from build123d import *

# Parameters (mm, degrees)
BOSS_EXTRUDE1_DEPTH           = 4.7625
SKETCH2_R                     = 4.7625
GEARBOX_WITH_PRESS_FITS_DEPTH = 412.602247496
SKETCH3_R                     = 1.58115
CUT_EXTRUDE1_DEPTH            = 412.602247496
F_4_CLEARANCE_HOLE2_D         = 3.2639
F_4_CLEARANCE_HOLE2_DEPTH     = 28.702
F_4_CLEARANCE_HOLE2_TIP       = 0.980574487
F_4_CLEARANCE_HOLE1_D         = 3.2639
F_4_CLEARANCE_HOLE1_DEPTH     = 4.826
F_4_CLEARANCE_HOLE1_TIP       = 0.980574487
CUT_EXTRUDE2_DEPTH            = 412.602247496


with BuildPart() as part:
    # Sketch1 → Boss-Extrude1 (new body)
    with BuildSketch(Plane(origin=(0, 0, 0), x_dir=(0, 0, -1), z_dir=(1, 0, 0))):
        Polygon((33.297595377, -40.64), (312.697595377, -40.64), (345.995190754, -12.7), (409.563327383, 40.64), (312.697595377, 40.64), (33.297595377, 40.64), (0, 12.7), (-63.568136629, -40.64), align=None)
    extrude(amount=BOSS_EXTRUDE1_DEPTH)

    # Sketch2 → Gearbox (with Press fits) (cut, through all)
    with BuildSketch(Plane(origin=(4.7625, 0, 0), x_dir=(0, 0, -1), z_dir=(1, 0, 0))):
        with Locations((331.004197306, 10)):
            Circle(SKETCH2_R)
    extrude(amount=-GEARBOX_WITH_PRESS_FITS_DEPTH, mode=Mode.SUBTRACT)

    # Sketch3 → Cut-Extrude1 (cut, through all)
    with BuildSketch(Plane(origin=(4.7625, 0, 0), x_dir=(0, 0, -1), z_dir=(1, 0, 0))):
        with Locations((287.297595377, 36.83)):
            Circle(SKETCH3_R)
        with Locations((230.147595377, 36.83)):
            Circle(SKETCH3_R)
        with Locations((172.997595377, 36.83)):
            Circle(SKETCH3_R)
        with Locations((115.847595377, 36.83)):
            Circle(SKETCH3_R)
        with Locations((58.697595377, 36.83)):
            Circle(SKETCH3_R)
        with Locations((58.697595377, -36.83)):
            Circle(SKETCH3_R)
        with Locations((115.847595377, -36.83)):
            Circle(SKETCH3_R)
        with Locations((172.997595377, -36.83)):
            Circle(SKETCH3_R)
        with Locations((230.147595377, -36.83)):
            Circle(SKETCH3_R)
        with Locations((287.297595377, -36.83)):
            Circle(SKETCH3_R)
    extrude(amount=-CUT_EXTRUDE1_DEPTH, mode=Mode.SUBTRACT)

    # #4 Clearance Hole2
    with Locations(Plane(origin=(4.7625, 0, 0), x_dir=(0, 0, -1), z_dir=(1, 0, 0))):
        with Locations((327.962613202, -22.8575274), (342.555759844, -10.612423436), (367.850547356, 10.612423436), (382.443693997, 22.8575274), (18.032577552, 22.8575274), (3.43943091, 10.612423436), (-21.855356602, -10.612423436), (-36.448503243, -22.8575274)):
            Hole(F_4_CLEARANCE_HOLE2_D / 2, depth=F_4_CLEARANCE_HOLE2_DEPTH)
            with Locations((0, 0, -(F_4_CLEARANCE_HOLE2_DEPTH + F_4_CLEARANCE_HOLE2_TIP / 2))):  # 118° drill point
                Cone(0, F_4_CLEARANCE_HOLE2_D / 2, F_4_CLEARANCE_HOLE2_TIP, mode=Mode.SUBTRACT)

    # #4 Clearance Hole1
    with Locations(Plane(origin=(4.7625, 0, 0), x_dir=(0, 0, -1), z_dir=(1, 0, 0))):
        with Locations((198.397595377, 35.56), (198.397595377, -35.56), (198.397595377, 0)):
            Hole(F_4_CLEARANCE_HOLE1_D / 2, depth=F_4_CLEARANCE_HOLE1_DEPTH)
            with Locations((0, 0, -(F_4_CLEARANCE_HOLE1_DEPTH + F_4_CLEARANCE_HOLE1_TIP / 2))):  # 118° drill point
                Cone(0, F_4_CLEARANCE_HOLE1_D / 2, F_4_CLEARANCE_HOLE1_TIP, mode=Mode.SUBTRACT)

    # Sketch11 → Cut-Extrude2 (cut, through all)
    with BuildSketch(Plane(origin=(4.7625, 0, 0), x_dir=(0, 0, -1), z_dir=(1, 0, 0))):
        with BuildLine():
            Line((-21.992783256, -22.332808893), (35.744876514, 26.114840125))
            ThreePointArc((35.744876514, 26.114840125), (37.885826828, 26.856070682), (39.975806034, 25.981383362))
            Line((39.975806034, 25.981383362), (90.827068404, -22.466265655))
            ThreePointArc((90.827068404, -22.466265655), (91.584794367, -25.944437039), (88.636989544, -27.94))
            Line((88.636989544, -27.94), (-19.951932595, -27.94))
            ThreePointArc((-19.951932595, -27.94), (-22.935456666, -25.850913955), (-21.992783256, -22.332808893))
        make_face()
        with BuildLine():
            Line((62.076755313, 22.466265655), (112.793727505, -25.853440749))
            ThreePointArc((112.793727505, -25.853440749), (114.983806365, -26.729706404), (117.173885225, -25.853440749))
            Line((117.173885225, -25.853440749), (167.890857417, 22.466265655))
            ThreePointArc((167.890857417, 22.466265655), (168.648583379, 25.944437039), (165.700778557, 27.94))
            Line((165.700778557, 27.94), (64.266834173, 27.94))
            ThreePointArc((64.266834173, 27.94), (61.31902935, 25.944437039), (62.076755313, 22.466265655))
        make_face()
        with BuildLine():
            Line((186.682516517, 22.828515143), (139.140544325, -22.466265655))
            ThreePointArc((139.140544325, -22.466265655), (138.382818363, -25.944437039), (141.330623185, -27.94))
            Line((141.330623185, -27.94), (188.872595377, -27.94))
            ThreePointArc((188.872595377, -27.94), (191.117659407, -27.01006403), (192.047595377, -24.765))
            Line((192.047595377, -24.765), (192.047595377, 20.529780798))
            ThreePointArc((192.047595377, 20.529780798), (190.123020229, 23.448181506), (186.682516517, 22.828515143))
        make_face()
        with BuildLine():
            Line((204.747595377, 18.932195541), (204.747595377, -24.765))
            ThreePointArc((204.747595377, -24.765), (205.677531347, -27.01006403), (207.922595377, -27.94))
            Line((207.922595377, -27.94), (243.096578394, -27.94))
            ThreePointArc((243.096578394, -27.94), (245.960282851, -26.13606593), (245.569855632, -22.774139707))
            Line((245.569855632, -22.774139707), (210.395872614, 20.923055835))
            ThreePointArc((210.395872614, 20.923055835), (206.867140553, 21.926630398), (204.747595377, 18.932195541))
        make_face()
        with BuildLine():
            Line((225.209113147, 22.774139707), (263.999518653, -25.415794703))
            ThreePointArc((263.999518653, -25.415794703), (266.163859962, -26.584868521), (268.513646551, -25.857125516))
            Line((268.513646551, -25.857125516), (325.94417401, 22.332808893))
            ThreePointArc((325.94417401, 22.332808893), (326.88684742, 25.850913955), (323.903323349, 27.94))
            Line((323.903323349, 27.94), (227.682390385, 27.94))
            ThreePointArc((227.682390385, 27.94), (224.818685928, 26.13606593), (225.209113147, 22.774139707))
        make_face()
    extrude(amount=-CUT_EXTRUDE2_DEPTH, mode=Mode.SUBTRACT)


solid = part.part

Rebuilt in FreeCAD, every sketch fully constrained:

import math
import FreeCAD as App
import Part
import Sketcher
from FreeCAD import Vector
Q = App.Units.Quantity


def add_polygon(sketch, points):
    """Adds a closed chain of lines whose ends are joined by coincident constraints."""
    first, n = sketch.GeometryCount, len(points)
    for a, b in zip(points, points[1:] + points[:1]):
        sketch.addGeometry(Part.LineSegment(App.Vector(*a, 0), App.Vector(*b, 0)), False)
    for i in range(n):
        sketch.addConstraint(Sketcher.Constraint("Coincident", first + i, 2, first + (i + 1) % n, 1))

doc = App.newDocument("Part")
body = doc.addObject("PartDesign::Body", "Body")

# Sketch on YZ plane
sketch1 = body.newObject("Sketcher::SketchObject", "Sketch")
sketch1.AttachmentSupport = (doc.getObject("YZ_Plane"), [""])
sketch1.MapMode = "FlatFace"
add_polygon(sketch1, [(-40.64, -312.697595), (-12.7, -345.995191), (40.64, -409.563327), (40.64, -33.297595), (12.7, 0), (-40.64, 63.568137)])  # lines 0-5
sketch1.addConstraint(Sketcher.Constraint("Vertical", 2))
sketch1.addConstraint(Sketcher.Constraint("Vertical", 5))
sketch1.addConstraint(Sketcher.Constraint("PointOnObject", 3, 2, -1))
sketch1.addConstraint(Sketcher.Constraint("Parallel", 0, 1))
sketch1.addConstraint(Sketcher.Constraint("Parallel", 1, 3))
sketch1.addConstraint(Sketcher.Constraint("Parallel", 3, 4))
sketch1.addConstraint(Sketcher.Constraint("Equal", 0, 3))
sketch1.addConstraint(Sketcher.Constraint("Angle", 0, Q("-50 deg")))
sketch1.addConstraint(Sketcher.Constraint("DistanceX", 0, 2, 3, 2, Q("1 in")))
sketch1.addConstraint(Sketcher.Constraint("DistanceY", 5, 2, 2, 2, Q("11 in")))
sketch1.addConstraint(Sketcher.Constraint("DistanceX", 0, 2, -1, 1, Q("0.5 in")))
sketch1.addConstraint(Sketcher.Constraint("DistanceX", -1, 1, 1, 2, Q("1.6 in")))
pad1 = body.newObject("PartDesign::Pad", "Pad")
pad1.Profile = sketch1
pad1.Length = Q("0.1875 in")

# Sketch on YZ plane
sketch2 = body.newObject("Sketcher::SketchObject", "Sketch001")
sketch2.AttachmentSupport = (doc.getObject("YZ_Plane"), [""])
sketch2.MapMode = "FlatFace"
sketch2.AttachmentOffset = App.Placement(Vector(0, 0, 0.1875 * 25.4), App.Rotation())
sketch2.addGeometry(Part.Circle(Vector(10, -331.004197, 0), Vector(0, 0, 1), 4.7625), False)
sketch2.addConstraint(Sketcher.Constraint("Diameter", 0, Q("0.375 in")))
sketch2.addConstraint(Sketcher.Constraint("DistanceX", -1, 1, 0, 3, 10.0))
sketch2.addConstraint(Sketcher.Constraint("DistanceY", 0, 3, -1, 1, 331.004197))
pocket1 = body.newObject("PartDesign::Pocket", "Pocket")
pocket1.Profile = sketch2
pocket1.Type = "ThroughAll"

# Sketch on YZ plane
sketch3 = body.newObject("Sketcher::SketchObject", "Sketch002")
sketch3.AttachmentSupport = (doc.getObject("YZ_Plane"), [""])
sketch3.MapMode = "FlatFace"
sketch3.AttachmentOffset = App.Placement(Vector(0, 0, 0.1875 * 25.4), App.Rotation())
sketch3.addGeometry(Part.Circle(Vector(36.83, -287.297595, 0), Vector(0, 0, 1), 1.58115), False)
sketch3.addGeometry(Part.Circle(Vector(36.83, -230.147595, 0), Vector(0, 0, 1), 1.58115), False)
sketch3.addGeometry(Part.Circle(Vector(36.83, -172.997595, 0), Vector(0, 0, 1), 1.58115), False)
sketch3.addGeometry(Part.Circle(Vector(36.83, -115.847595, 0), Vector(0, 0, 1), 1.58115), False)
sketch3.addGeometry(Part.Circle(Vector(36.83, -58.697595, 0), Vector(0, 0, 1), 1.58115), False)
sketch3.addGeometry(Part.Circle(Vector(-36.83, -58.697595, 0), Vector(0, 0, 1), 1.58115), False)
sketch3.addGeometry(Part.Circle(Vector(-36.83, -115.847595, 0), Vector(0, 0, 1), 1.58115), False)
sketch3.addGeometry(Part.Circle(Vector(-36.83, -172.997595, 0), Vector(0, 0, 1), 1.58115), False)
sketch3.addGeometry(Part.Circle(Vector(-36.83, -230.147595, 0), Vector(0, 0, 1), 1.58115), False)
sketch3.addGeometry(Part.Circle(Vector(-36.83, -287.297595, 0), Vector(0, 0, 1), 1.58115), False)
sketch3.addConstraint(Sketcher.Constraint("Equal", 0, 1))
sketch3.addConstraint(Sketcher.Constraint("Equal", 1, 2))
sketch3.addConstraint(Sketcher.Constraint("Equal", 2, 3))
sketch3.addConstraint(Sketcher.Constraint("Equal", 3, 4))
sketch3.addConstraint(Sketcher.Constraint("Equal", 4, 5))
sketch3.addConstraint(Sketcher.Constraint("Equal", 5, 6))
sketch3.addConstraint(Sketcher.Constraint("Equal", 6, 7))
sketch3.addConstraint(Sketcher.Constraint("Equal", 7, 8))
sketch3.addConstraint(Sketcher.Constraint("Equal", 8, 9))
sketch3.addConstraint(Sketcher.Constraint("Symmetric", 4, 3, 5, 3, -2))
sketch3.addConstraint(Sketcher.Constraint("Symmetric", 3, 3, 6, 3, -2))
sketch3.addConstraint(Sketcher.Constraint("Symmetric", 2, 3, 7, 3, -2))
sketch3.addConstraint(Sketcher.Constraint("Symmetric", 1, 3, 8, 3, -2))
sketch3.addConstraint(Sketcher.Constraint("Symmetric", 0, 3, 9, 3, -2))
sketch3.addConstraint(Sketcher.Constraint("Vertical", 0, 3, 1, 3))
sketch3.addConstraint(Sketcher.Constraint("Vertical", 1, 3, 2, 3))
sketch3.addConstraint(Sketcher.Constraint("Vertical", 2, 3, 3, 3))
sketch3.addConstraint(Sketcher.Constraint("Vertical", 3, 3, 4, 3))
sketch3.addConstraint(Sketcher.Constraint("DistanceY", 0, 3, 4, 3, Q("9 in")))
sketch3.addConstraint(Sketcher.Constraint("Diameter", 0, Q("0.1245 in")))
sketch3.addConstraint(Sketcher.Constraint("DistanceY", 0, 3, 2, 3, Q("4.5 in")))
sketch3.addConstraint(Sketcher.Constraint("DistanceY", 1, 3, 3, 3, Q("4.5 in")))
sketch3.addConstraint(Sketcher.Constraint("DistanceX", 5, 3, 4, 3, Q("2.9 in")))
sketch3.addConstraint(Sketcher.Constraint("DistanceY", 0, 3, 1, 3, Q("2.25 in")))
sketch3.addConstraint(Sketcher.Constraint("DistanceY", 0, 3, -1, 1, 287.297595))
pocket2 = body.newObject("PartDesign::Pocket", "Pocket001")
pocket2.Profile = sketch3
pocket2.Type = "ThroughAll"

# Sketch on YZ plane
sketch4 = body.newObject("Sketcher::SketchObject", "Sketch003")
sketch4.AttachmentSupport = (doc.getObject("YZ_Plane"), [""])
sketch4.MapMode = "FlatFace"
sketch4.AttachmentOffset = App.Placement(Vector(0, 0, 0.1875 * 25.4), App.Rotation())
sketch4.addGeometry(Part.Circle(Vector(-22.857527, -327.962613, 0), Vector(0, 0, 1), 1.63195), False)
sketch4.addGeometry(Part.Circle(Vector(-10.612423, -342.55576, 0), Vector(0, 0, 1), 1.63195), False)
sketch4.addGeometry(Part.Circle(Vector(10.612423, -367.850547, 0), Vector(0, 0, 1), 1.63195), False)
sketch4.addGeometry(Part.Circle(Vector(22.857527, -382.443694, 0), Vector(0, 0, 1), 1.63195), False)
sketch4.addGeometry(Part.Circle(Vector(22.857527, -18.032578, 0), Vector(0, 0, 1), 1.63195), False)
sketch4.addGeometry(Part.Circle(Vector(10.612423, -3.439431, 0), Vector(0, 0, 1), 1.63195), False)
sketch4.addGeometry(Part.Circle(Vector(-10.612423, 21.855357, 0), Vector(0, 0, 1), 1.63195), False)
sketch4.addGeometry(Part.Circle(Vector(-22.857527, 36.448503, 0), Vector(0, 0, 1), 1.63195), False)
sketch4.addConstraint(Sketcher.Constraint("Equal", 0, 1))
sketch4.addConstraint(Sketcher.Constraint("Equal", 1, 2))
sketch4.addConstraint(Sketcher.Constraint("Equal", 2, 3))
sketch4.addConstraint(Sketcher.Constraint("Equal", 3, 4))
sketch4.addConstraint(Sketcher.Constraint("Equal", 4, 5))
sketch4.addConstraint(Sketcher.Constraint("Equal", 5, 6))
sketch4.addConstraint(Sketcher.Constraint("Equal", 6, 7))
sketch4.addConstraint(Sketcher.Constraint("Vertical", 3, 3, 4, 3))
sketch4.addConstraint(Sketcher.Constraint("Vertical", 2, 3, 5, 3))
sketch4.addConstraint(Sketcher.Constraint("Vertical", 1, 3, 6, 3))
sketch4.addConstraint(Sketcher.Constraint("Vertical", 0, 3, 7, 3))
sketch4.addConstraint(Sketcher.Constraint("Diameter", 0, Q("0.1285 in")))
sketch4.addConstraint(Sketcher.Constraint("DistanceY", 1, 3, -1, 1, 342.55576))
sketch4.addConstraint(Sketcher.Constraint("DistanceY", 5, 3, -1, 1, 3.439431))
sketch4.addConstraint(Sketcher.Constraint("DistanceX", 0, 3, 2, 3, 33.469951))
sketch4.addConstraint(Sketcher.Constraint("DistanceX", 1, 3, 3, 3, 33.469951))
sketch4.addConstraint(Sketcher.Constraint("DistanceY", 3, 3, 0, 3, 54.481081))
sketch4.addConstraint(Sketcher.Constraint("DistanceY", 2, 3, 4, 3, 349.81797))
sketch4.addConstraint(Sketcher.Constraint("DistanceY", 0, 3, 6, 3, 349.81797))
sketch4.addConstraint(Sketcher.Constraint("DistanceY", 4, 3, 7, 3, 54.481081))
sketch4.addConstraint(Sketcher.Constraint("DistanceX", 0, 3, -1, 1, 22.857527))
sketch4.addConstraint(Sketcher.Constraint("DistanceY", 0, 3, -1, 1, 327.962613))
sketch4.addConstraint(Sketcher.Constraint("DistanceX", 1, 3, -1, 1, 10.612423))
sketch4.addConstraint(Sketcher.Constraint("DistanceY", 2, 3, -1, 1, 367.850547))
doc.recompute()
hole = body.newObject("PartDesign::Hole", "Hole")
hole.Profile = sketch4
hole.ThreadType = "None"
hole.Diameter = Q("0.1285 in")
hole.DepthType = "Dimension"
hole.Depth = Q("1.13 in")
hole.DrillPoint = "Angled"
hole.DrillPointAngle = 118

# Sketch on YZ plane
sketch5 = body.newObject("Sketcher::SketchObject", "Sketch004")
sketch5.AttachmentSupport = (doc.getObject("YZ_Plane"), [""])
sketch5.MapMode = "FlatFace"
sketch5.AttachmentOffset = App.Placement(Vector(0, 0, 0.1875 * 25.4), App.Rotation())
sketch5.addGeometry(Part.Circle(Vector(35.56, -198.397595, 0), Vector(0, 0, 1), 1.63195), False)
sketch5.addGeometry(Part.Circle(Vector(-35.56, -198.397595, 0), Vector(0, 0, 1), 1.63195), False)
sketch5.addGeometry(Part.Circle(Vector(0, -198.397595, 0), Vector(0, 0, 1), 1.63195), False)
sketch5.addConstraint(Sketcher.Constraint("Equal", 0, 1))
sketch5.addConstraint(Sketcher.Constraint("Equal", 1, 2))
sketch5.addConstraint(Sketcher.Constraint("Symmetric", 0, 3, 1, 3, -2))
sketch5.addConstraint(Sketcher.Constraint("PointOnObject", 2, 3, -2))
sketch5.addConstraint(Sketcher.Constraint("Horizontal", 1, 3, 2, 3))
sketch5.addConstraint(Sketcher.Constraint("Diameter", 0, Q("0.1285 in")))
sketch5.addConstraint(Sketcher.Constraint("DistanceX", -1, 1, 0, 3, Q("1.4 in")))
sketch5.addConstraint(Sketcher.Constraint("DistanceY", 0, 3, -1, 1, 198.397595))
doc.recompute()
hole2 = body.newObject("PartDesign::Hole", "Hole001")
hole2.Profile = sketch5
hole2.ThreadType = "None"
hole2.Diameter = Q("0.1285 in")
hole2.DepthType = "Dimension"
hole2.Depth = Q("0.19 in")
hole2.DrillPoint = "Angled"
hole2.DrillPointAngle = 118

# Sketch on YZ plane
sketch6 = body.newObject("Sketcher::SketchObject", "Sketch005")
sketch6.AttachmentSupport = (doc.getObject("YZ_Plane"), [""])
sketch6.MapMode = "FlatFace"
sketch6.AttachmentOffset = App.Placement(Vector(0, 0, 0.1875 * 25.4), App.Rotation())
sketch6.addGeometry(Part.LineSegment(Vector(26.11484, -35.744877, 0), Vector(-22.332809, 21.992783, 0)), False)
sketch6.addGeometry(Part.ArcOfCircle(Part.Circle(Vector(-24.765, 19.951933, 0), Vector(0, 0, 1), 3.175), math.radians(40), math.radians(180)), False)
sketch6.addGeometry(Part.LineSegment(Vector(-27.94, 19.951933, 0), Vector(-27.94, -88.63699, 0)), False)
sketch6.addGeometry(Part.ArcOfCircle(Part.Circle(Vector(-24.765, -88.63699, 0), Vector(0, 0, 1), 3.175), math.radians(180), math.radians(316.386622)), False)
sketch6.addGeometry(Part.LineSegment(Vector(-22.466266, -90.827068, 0), Vector(25.981383, -39.975806, 0)), False)
sketch6.addGeometry(Part.ArcOfCircle(Part.Circle(Vector(23.682649, -37.785727, 0), Vector(0, 0, 1), 3.175), math.radians(-43.613378), math.radians(40)), False)
sketch6.addGeometry(Part.LineSegment(Vector(22.466266, -62.076755, 0), Vector(-25.853441, -112.793728, 0)), False)
sketch6.addGeometry(Part.ArcOfCircle(Part.Circle(Vector(-23.554706, -114.983806, 0), Vector(0, 0, 1), 3.175), math.radians(136.386622), math.radians(223.613378)), False)
sketch6.addGeometry(Part.LineSegment(Vector(-25.853441, -117.173885, 0), Vector(22.466266, -167.890857, 0)), False)
sketch6.addGeometry(Part.ArcOfCircle(Part.Circle(Vector(24.765, -165.700779, 0), Vector(0, 0, 1), 3.175), math.radians(-136.386622), math.radians(0)), False)
sketch6.addGeometry(Part.LineSegment(Vector(27.94, -165.700779, 0), Vector(27.94, -64.266834, 0)), False)
sketch6.addGeometry(Part.ArcOfCircle(Part.Circle(Vector(24.765, -64.266834, 0), Vector(0, 0, 1), 3.175), math.radians(0), math.radians(136.386622)), False)
sketch6.addGeometry(Part.LineSegment(Vector(22.828515, -186.682517, 0), Vector(-22.466266, -139.140544, 0)), False)
sketch6.addGeometry(Part.ArcOfCircle(Part.Circle(Vector(-24.765, -141.330623, 0), Vector(0, 0, 1), 3.175), math.radians(43.613378), math.radians(180)), False)
sketch6.addGeometry(Part.LineSegment(Vector(-27.94, -141.330623, 0), Vector(-27.94, -188.872595, 0)), False)
sketch6.addGeometry(Part.ArcOfCircle(Part.Circle(Vector(-24.765, -188.872595, 0), Vector(0, 0, 1), 3.175), math.radians(-180), math.radians(-90)), False)
sketch6.addGeometry(Part.LineSegment(Vector(-24.765, -192.047595, 0), Vector(20.529781, -192.047595, 0)), False)
sketch6.addGeometry(Part.ArcOfCircle(Part.Circle(Vector(20.529781, -188.872595, 0), Vector(0, 0, 1), 3.175), math.radians(-90), math.radians(43.613378)), False)
sketch6.addGeometry(Part.LineSegment(Vector(18.932196, -204.747595, 0), Vector(-24.765, -204.747595, 0)), False)
sketch6.addGeometry(Part.ArcOfCircle(Part.Circle(Vector(-24.765, -207.922595, 0), Vector(0, 0, 1), 3.175), math.radians(90), math.radians(180)), False)
sketch6.addGeometry(Part.LineSegment(Vector(-27.94, -207.922595, 0), Vector(-27.94, -243.096578, 0)), False)
sketch6.addGeometry(Part.ArcOfCircle(Part.Circle(Vector(-24.765, -243.096578, 0), Vector(0, 0, 1), 3.175), math.radians(180), math.radians(308.832267)), False)
sketch6.addGeometry(Part.LineSegment(Vector(-22.77414, -245.569856, 0), Vector(20.923056, -210.395873, 0)), False)
sketch6.addGeometry(Part.ArcOfCircle(Part.Circle(Vector(18.932196, -207.922595, 0), Vector(0, 0, 1), 3.175), math.radians(-51.167733), math.radians(90)), False)
sketch6.addGeometry(Part.LineSegment(Vector(22.77414, -225.209113, 0), Vector(-25.415795, -263.999519, 0)), False)
sketch6.addGeometry(Part.ArcOfCircle(Part.Circle(Vector(-23.424934, -266.472796, 0), Vector(0, 0, 1), 3.175), math.radians(128.832267), math.radians(220)), False)
sketch6.addGeometry(Part.LineSegment(Vector(-25.857126, -268.513647, 0), Vector(22.332809, -325.944174, 0)), False)
sketch6.addGeometry(Part.ArcOfCircle(Part.Circle(Vector(24.765, -323.903323, 0), Vector(0, 0, 1), 3.175), math.radians(-140), math.radians(0)), False)
sketch6.addGeometry(Part.LineSegment(Vector(27.94, -323.903323, 0), Vector(27.94, -227.68239, 0)), False)
sketch6.addGeometry(Part.ArcOfCircle(Part.Circle(Vector(24.765, -227.68239, 0), Vector(0, 0, 1), 3.175), math.radians(0), math.radians(128.832267)), False)
sketch6.addConstraint(Sketcher.Constraint("Tangent", 0, 2, 1, 1))
sketch6.addConstraint(Sketcher.Constraint("Tangent", 1, 2, 2, 1))
sketch6.addConstraint(Sketcher.Constraint("Tangent", 2, 2, 3, 1))
sketch6.addConstraint(Sketcher.Constraint("Tangent", 3, 2, 4, 1))
sketch6.addConstraint(Sketcher.Constraint("Tangent", 4, 2, 5, 1))
sketch6.addConstraint(Sketcher.Constraint("Tangent", 5, 2, 0, 1))
sketch6.addConstraint(Sketcher.Constraint("Tangent", 6, 2, 7, 1))
sketch6.addConstraint(Sketcher.Constraint("Tangent", 7, 2, 8, 1))
sketch6.addConstraint(Sketcher.Constraint("Tangent", 8, 2, 9, 1))
sketch6.addConstraint(Sketcher.Constraint("Tangent", 9, 2, 10, 1))
sketch6.addConstraint(Sketcher.Constraint("Tangent", 10, 2, 11, 1))
sketch6.addConstraint(Sketcher.Constraint("Tangent", 11, 2, 6, 1))
sketch6.addConstraint(Sketcher.Constraint("Tangent", 12, 2, 13, 1))
sketch6.addConstraint(Sketcher.Constraint("Tangent", 13, 2, 14, 1))
sketch6.addConstraint(Sketcher.Constraint("Tangent", 14, 2, 15, 1))
sketch6.addConstraint(Sketcher.Constraint("Tangent", 15, 2, 16, 1))
sketch6.addConstraint(Sketcher.Constraint("Tangent", 16, 2, 17, 1))
sketch6.addConstraint(Sketcher.Constraint("Tangent", 17, 2, 12, 1))
sketch6.addConstraint(Sketcher.Constraint("Tangent", 18, 2, 19, 1))
sketch6.addConstraint(Sketcher.Constraint("Tangent", 19, 2, 20, 1))
sketch6.addConstraint(Sketcher.Constraint("Tangent", 20, 2, 21, 1))
sketch6.addConstraint(Sketcher.Constraint("Tangent", 21, 2, 22, 1))
sketch6.addConstraint(Sketcher.Constraint("Tangent", 22, 2, 23, 1))
sketch6.addConstraint(Sketcher.Constraint("Tangent", 23, 2, 18, 1))
sketch6.addConstraint(Sketcher.Constraint("Tangent", 24, 2, 25, 1))
sketch6.addConstraint(Sketcher.Constraint("Tangent", 25, 2, 26, 1))
sketch6.addConstraint(Sketcher.Constraint("Tangent", 26, 2, 27, 1))
sketch6.addConstraint(Sketcher.Constraint("Tangent", 27, 2, 28, 1))
sketch6.addConstraint(Sketcher.Constraint("Tangent", 28, 2, 29, 1))
sketch6.addConstraint(Sketcher.Constraint("Tangent", 29, 2, 24, 1))
sketch6.addConstraint(Sketcher.Constraint("Vertical", 2))
sketch6.addConstraint(Sketcher.Constraint("Vertical", 10))
sketch6.addConstraint(Sketcher.Constraint("Vertical", 14))
sketch6.addConstraint(Sketcher.Constraint("Horizontal", 16))
sketch6.addConstraint(Sketcher.Constraint("Horizontal", 18))
sketch6.addConstraint(Sketcher.Constraint("Vertical", 20))
sketch6.addConstraint(Sketcher.Constraint("Vertical", 28))
sketch6.addConstraint(Sketcher.Constraint("Equal", 1, 3))
sketch6.addConstraint(Sketcher.Constraint("Equal", 3, 5))
sketch6.addConstraint(Sketcher.Constraint("Equal", 5, 7))
sketch6.addConstraint(Sketcher.Constraint("Equal", 7, 9))
sketch6.addConstraint(Sketcher.Constraint("Equal", 9, 11))
sketch6.addConstraint(Sketcher.Constraint("Equal", 11, 13))
sketch6.addConstraint(Sketcher.Constraint("Equal", 13, 15))
sketch6.addConstraint(Sketcher.Constraint("Equal", 15, 17))
sketch6.addConstraint(Sketcher.Constraint("Equal", 17, 19))
sketch6.addConstraint(Sketcher.Constraint("Equal", 19, 21))
sketch6.addConstraint(Sketcher.Constraint("Equal", 21, 23))
sketch6.addConstraint(Sketcher.Constraint("Equal", 23, 25))
sketch6.addConstraint(Sketcher.Constraint("Equal", 25, 27))
sketch6.addConstraint(Sketcher.Constraint("Equal", 27, 29))
sketch6.addConstraint(Sketcher.Constraint("Parallel", 4, 6))
sketch6.addConstraint(Sketcher.Constraint("Parallel", 8, 12))
sketch6.addConstraint(Sketcher.Constraint("Parallel", 22, 24))
sketch6.addConstraint(Sketcher.Constraint("Parallel", 0, 26))
sketch6.addConstraint(Sketcher.Constraint("Vertical", 3, 3, 13, 3))
sketch6.addConstraint(Sketcher.Constraint("Vertical", 15, 3, 19, 3))
sketch6.addConstraint(Sketcher.Constraint("Vertical", 11, 3, 27, 3))
sketch6.addConstraint(Sketcher.Constraint("Vertical", 6, 2, 7, 2))
sketch6.addConstraint(Sketcher.Constraint("Angle", 0, Q("130 deg")))
sketch6.addConstraint(Sketcher.Constraint("Radius", 1, Q("0.125 in")))
sketch6.addConstraint(Sketcher.Constraint("DistanceX", 1, 2, -1, 1, Q("1.1 in")))
sketch6.addConstraint(Sketcher.Constraint("DistanceX", -1, 1, 9, 2, Q("1.1 in")))
sketch6.addConstraint(Sketcher.Constraint("DistanceY", 18, 2, 15, 2, Q("0.5 in")))
sketch6.addConstraint(Sketcher.Constraint("DistanceY", 13, 3, 6, 2, Q("1.1234998 in")))
sketch6.addConstraint(Sketcher.Constraint("DistanceY", 7, 2, 3, 3, Q("1.1234998 in")))
sketch6.addConstraint(Sketcher.Constraint("Distance", 4, 70.235501))
sketch6.addConstraint(Sketcher.Constraint("DistanceX", 16, 1, 16, 2, 45.294781))
sketch6.addConstraint(Sketcher.Constraint("DistanceY", 21, 3, 9, 3, 77.3958))
sketch6.addConstraint(Sketcher.Constraint("DistanceY", 25, 3, 19, 3, 58.550201))
sketch6.addConstraint(Sketcher.Constraint("Distance", 0, 75.371162))
sketch6.addConstraint(Sketcher.Constraint("Distance", 6, 70.05002))
sketch6.addConstraint(Sketcher.Constraint("Distance", 24, 61.862471))
sketch6.addConstraint(Sketcher.Constraint("Distance", 26, 74.970229))
sketch6.addConstraint(Sketcher.Constraint("DistanceY", 3, 3, -1, 1, 88.63699))
pocket3 = body.newObject("PartDesign::Pocket", "Pocket002")
pocket3.Profile = sketch6
pocket3.Type = "ThroughAll"

doc.recompute()
